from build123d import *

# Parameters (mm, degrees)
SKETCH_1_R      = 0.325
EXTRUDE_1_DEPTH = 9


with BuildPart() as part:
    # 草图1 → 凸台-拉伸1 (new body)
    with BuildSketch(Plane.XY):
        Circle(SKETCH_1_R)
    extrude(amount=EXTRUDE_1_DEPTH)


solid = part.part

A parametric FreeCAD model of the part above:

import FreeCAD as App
import Part
import Sketcher
from FreeCAD import Vector
Q = App.Units.Quantity

doc = App.newDocument("Part")
body = doc.addObject("PartDesign::Body", "Body")

# Sketch on XY plane
sketch1 = body.newObject("Sketcher::SketchObject", "Sketch")
sketch1.AttachmentSupport = (doc.getObject("XY_Plane"), [""])
sketch1.MapMode = "FlatFace"
sketch1.addGeometry(Part.Circle(Vector(0, 0, 0), Vector(0, 0, 1), 0.33), False)
sketch1.addConstraint([
    Sketcher.Constraint("Coincident", 0, 3, -1, 1),
    Sketcher.Constraint("Diameter", 0, Q("0.65 mm")),
])
pad1 = body.newObject("PartDesign::Pad", "Pad")
pad1.Profile = sketch1
pad1.Length = 9

doc.recompute()
